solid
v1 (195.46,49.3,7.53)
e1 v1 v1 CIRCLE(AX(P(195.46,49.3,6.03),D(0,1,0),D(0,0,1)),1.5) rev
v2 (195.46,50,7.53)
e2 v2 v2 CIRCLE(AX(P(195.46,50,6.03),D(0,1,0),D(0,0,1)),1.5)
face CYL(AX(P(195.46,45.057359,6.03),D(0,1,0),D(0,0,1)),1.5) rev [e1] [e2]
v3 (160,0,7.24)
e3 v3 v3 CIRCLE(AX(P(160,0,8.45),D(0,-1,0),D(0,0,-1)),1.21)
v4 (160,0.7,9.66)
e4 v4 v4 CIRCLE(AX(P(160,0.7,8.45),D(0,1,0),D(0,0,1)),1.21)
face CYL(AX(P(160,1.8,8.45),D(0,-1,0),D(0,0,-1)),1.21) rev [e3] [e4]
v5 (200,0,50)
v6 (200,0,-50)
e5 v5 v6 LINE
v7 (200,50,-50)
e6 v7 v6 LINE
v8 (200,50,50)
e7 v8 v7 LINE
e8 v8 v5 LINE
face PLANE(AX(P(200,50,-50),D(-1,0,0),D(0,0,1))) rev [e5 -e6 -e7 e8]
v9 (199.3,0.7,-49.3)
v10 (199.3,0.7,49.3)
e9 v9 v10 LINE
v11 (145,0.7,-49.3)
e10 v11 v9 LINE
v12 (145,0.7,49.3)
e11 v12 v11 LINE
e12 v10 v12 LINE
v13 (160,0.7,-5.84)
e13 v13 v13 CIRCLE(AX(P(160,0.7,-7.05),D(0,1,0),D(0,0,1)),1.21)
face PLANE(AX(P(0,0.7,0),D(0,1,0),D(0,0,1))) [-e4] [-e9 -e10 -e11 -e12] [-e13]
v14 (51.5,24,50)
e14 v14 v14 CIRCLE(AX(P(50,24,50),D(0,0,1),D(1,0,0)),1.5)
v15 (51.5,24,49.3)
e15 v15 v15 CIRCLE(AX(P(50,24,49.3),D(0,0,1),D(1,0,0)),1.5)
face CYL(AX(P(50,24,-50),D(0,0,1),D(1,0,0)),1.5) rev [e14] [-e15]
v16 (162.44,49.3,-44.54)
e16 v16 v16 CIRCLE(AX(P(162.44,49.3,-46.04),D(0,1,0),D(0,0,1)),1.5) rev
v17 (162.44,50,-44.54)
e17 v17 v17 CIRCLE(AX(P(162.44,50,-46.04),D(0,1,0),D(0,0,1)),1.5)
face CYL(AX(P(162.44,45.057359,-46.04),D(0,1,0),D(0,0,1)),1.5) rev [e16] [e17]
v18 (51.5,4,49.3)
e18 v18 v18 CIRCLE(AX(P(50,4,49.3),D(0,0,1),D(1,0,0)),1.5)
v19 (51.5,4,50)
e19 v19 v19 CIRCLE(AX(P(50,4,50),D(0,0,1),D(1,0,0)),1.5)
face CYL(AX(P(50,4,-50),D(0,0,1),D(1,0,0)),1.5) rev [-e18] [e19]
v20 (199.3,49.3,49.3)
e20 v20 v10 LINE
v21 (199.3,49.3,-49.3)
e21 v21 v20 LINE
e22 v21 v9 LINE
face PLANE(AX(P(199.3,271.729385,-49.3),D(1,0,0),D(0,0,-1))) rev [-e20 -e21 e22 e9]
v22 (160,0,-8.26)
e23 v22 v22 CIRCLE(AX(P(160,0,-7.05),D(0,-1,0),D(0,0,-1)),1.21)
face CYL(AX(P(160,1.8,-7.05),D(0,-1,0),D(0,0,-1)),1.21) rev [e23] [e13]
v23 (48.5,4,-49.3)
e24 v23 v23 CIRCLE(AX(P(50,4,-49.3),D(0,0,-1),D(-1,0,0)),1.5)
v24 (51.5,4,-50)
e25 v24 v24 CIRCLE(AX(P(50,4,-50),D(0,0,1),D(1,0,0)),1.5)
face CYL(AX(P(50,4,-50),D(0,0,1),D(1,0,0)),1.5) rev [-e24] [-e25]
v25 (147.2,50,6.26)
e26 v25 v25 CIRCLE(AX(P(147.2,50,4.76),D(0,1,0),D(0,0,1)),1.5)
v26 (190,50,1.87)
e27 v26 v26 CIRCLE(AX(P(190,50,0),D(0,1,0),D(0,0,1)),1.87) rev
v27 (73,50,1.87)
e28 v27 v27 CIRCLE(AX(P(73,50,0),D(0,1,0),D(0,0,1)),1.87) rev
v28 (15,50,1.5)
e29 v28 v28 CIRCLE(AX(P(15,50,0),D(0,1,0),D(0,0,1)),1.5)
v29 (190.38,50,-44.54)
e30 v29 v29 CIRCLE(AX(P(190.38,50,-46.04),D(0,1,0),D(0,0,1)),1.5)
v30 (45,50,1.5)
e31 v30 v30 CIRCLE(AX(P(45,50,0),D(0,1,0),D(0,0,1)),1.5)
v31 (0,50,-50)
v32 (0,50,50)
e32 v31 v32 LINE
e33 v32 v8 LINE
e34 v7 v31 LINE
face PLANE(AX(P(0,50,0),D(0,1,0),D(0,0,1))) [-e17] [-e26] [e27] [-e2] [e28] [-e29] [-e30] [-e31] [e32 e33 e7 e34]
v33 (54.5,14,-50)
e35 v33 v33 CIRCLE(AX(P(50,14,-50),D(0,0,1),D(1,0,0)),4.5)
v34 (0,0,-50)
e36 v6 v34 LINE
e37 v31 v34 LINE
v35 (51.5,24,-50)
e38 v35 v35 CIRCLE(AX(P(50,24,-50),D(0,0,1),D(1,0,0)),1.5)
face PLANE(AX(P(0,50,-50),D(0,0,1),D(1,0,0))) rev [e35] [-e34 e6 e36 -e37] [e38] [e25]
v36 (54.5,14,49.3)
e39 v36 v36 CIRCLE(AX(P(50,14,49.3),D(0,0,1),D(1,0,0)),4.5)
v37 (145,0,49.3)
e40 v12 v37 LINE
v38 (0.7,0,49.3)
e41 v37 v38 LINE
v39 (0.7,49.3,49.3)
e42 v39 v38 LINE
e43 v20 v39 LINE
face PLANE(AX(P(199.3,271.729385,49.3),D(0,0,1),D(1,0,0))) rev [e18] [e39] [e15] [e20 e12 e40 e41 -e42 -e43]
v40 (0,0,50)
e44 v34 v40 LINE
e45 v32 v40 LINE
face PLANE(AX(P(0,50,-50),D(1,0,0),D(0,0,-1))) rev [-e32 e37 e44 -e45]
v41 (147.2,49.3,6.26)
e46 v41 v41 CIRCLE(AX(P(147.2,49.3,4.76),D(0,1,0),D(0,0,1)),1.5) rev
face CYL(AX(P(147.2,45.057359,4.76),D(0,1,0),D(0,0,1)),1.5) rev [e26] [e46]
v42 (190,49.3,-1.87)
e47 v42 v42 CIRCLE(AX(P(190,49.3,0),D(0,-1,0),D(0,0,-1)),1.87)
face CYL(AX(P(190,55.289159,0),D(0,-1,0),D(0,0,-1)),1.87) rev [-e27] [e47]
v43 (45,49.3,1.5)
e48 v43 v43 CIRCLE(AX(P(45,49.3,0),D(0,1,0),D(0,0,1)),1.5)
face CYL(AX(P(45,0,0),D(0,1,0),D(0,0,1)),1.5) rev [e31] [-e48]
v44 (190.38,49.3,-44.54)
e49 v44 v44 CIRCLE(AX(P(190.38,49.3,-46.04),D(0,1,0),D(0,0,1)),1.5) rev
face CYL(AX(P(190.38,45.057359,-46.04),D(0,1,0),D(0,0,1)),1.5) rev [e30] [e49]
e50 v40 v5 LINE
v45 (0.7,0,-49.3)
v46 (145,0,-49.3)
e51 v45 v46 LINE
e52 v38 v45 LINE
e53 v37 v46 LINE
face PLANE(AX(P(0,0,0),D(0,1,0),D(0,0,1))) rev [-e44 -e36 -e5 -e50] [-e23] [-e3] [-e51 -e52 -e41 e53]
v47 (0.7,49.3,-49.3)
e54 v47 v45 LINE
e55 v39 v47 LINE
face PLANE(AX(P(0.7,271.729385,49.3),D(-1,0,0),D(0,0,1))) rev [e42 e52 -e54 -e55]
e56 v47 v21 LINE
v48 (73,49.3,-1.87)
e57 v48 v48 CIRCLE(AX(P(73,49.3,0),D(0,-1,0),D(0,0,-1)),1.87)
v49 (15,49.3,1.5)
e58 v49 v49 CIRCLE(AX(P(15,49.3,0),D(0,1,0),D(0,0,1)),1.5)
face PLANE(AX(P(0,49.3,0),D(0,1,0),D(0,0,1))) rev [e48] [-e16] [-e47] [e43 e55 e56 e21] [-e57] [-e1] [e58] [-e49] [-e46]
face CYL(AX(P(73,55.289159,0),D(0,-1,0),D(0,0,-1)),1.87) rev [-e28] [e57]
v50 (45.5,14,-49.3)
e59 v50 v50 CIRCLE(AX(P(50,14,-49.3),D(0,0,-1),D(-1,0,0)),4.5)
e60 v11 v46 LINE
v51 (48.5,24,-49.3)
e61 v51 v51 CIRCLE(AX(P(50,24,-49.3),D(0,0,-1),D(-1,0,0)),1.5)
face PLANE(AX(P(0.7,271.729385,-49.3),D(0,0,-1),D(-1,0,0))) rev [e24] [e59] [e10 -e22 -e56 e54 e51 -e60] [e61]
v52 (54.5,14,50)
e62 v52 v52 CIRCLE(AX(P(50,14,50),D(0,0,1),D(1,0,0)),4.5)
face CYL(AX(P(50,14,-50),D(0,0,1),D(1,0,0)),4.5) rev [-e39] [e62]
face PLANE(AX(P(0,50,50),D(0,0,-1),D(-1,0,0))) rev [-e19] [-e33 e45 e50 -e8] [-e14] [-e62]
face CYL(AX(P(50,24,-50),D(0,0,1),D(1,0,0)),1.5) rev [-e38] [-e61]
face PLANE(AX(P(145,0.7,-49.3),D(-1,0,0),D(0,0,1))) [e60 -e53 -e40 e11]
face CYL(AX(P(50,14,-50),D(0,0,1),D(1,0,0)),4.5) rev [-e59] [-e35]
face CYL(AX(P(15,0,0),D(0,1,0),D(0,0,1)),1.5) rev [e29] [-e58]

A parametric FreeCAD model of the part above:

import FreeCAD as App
import Part
import Sketcher
from FreeCAD import Vector


def add_polygon(sketch, points):
    """Adds a closed chain of lines whose ends are joined by coincident constraints."""
    first, n = sketch.GeometryCount, len(points)
    for a, b in zip(points, points[1:] + points[:1]):
        sketch.addGeometry(Part.LineSegment(App.Vector(*a, 0), App.Vector(*b, 0)), False)
    for i in range(n):
        sketch.addConstraint(Sketcher.Constraint("Coincident", first + i, 2, first + (i + 1) % n, 1))

doc = App.newDocument("Part")
params = doc.addObject("Spreadsheet::Sheet", "Params")
for row, (alias, value) in enumerate([
    ("sketch1_width", "200 mm"),
    ("sketch1_height", "100 mm"),
    ("pad1_length", "50 mm"),
    ("sketch2_width", "198.6 mm"),
    ("sketch2_height", "98.6 mm"),
    ("pocket1_length", "49.3 mm"),
    ("sketch3_width", "54.3 mm"),
    ("sketch3_height", "98.6 mm"),
    ("pad2_length", "0.7 mm"),
    ("sketch4_diameter", "9 mm"),
    ("sketch4_diameter2", "3 mm"),
    ("sketch5_diameter", "2.42 mm"),
    ("pocket3_length", "1.8 mm"),
    ("sketch6_diameter", "3.74 mm"),
    ("pocket4_length", "0.7 mm"),
    ("sketch7_diameter", "3 mm"),
    ("sketch8_diameter", "3 mm"),
    ("pocket6_length", "0.7 mm"),
], start=1):
    params.set(f"A{row}", alias)
    params.set(f"B{row}", "=" + value)
    params.setAlias(f"B{row}", alias)

body = doc.addObject("PartDesign::Body", "Body")

# Sketch on XZ plane
sketch1 = doc.addObject("Sketcher::SketchObject", "Sketch")
body.addObject(sketch1)
sketch1.AttachmentSupport = (doc.XZ_Plane, [""])
sketch1.MapMode = "FlatFace"
add_polygon(sketch1, [(0, -50), (0, 50), (200, 50), (200, -50)])  # lines 0-3
sketch1.addConstraint([
    Sketcher.Constraint("Vertical", 0),
    Sketcher.Constraint("Horizontal", 1),
    Sketcher.Constraint("Vertical", 2),
    Sketcher.Constraint("Horizontal", 3),
    Sketcher.Constraint("Symmetric", 0, 2, 3, 2, -1, 1),
    Sketcher.Constraint("DistanceX", 1, 1, 1, 2, 200.0),
    Sketcher.Constraint("DistanceY", 0, 1, 0, 2, 100.0),
])
sketch1.setExpression("Constraints[9]", "Params.sketch1_width")
sketch1.setExpression("Constraints[10]", "Params.sketch1_height")
pad1 = doc.addObject("PartDesign::Pad", "Pad")
body.addObject(pad1)
pad1.Profile = sketch1
pad1.setExpression("Length", "Params.pad1_length")
pad1.Reversed = True

# Sketch on XZ plane
sketch2 = doc.addObject("Sketcher::SketchObject", "Sketch001")
body.addObject(sketch2)
sketch2.AttachmentSupport = (doc.XZ_Plane, [""])
sketch2.MapMode = "FlatFace"
add_polygon(sketch2, [(1, 49), (1, -49), (199, -49), (199, 49)])  # lines 0-3
sketch2.addConstraint([
    Sketcher.Constraint("Vertical", 0),
    Sketcher.Constraint("Horizontal", 1),
    Sketcher.Constraint("Vertical", 2),
    Sketcher.Constraint("Horizontal", 3),
    Sketcher.Constraint("DistanceX", 1, 1, 1, 2, 198.6),
    Sketcher.Constraint("DistanceY", 0, 2, 0, 1, 98.6),
    Sketcher.Constraint("DistanceX", -1, 1, 0, 2, 0.7),
    Sketcher.Constraint("DistanceY", 0, 2, -1, 1, 49.3),
])
sketch2.setExpression("Constraints[8]", "Params.sketch2_width")
sketch2.setExpression("Constraints[9]", "Params.sketch2_height")
pocket1 = doc.addObject("PartDesign::Pocket", "Pocket")
body.addObject(pocket1)
pocket1.Profile = sketch2
pocket1.setExpression("Length", "Params.pocket1_length")

# Sketch on XZ plane
sketch3 = doc.addObject("Sketcher::SketchObject", "Sketch002")
body.addObject(sketch3)
sketch3.AttachmentSupport = (doc.XZ_Plane, [""])
sketch3.MapMode = "FlatFace"
add_polygon(sketch3, [(145, 49), (145, -49), (199, -49), (199, 49)])  # lines 0-3
sketch3.addConstraint([
    Sketcher.Constraint("Vertical", 0),
    Sketcher.Constraint("Horizontal", 1),
    Sketcher.Constraint("Vertical", 2),
    Sketcher.Constraint("Horizontal", 3),
    Sketcher.Constraint("DistanceX", 1, 1, 1, 2, 54.3),
    Sketcher.Constraint("DistanceY", 0, 2, 0, 1, 98.6),
    Sketcher.Constraint("DistanceX", -1, 1, 0, 2, 145.0),
    Sketcher.Constraint("DistanceY", 0, 2, -1, 1, 49.3),
])
sketch3.setExpression("Constraints[8]", "Params.sketch3_width")
sketch3.setExpression("Constraints[9]", "Params.sketch3_height")
pad2 = doc.addObject("PartDesign::Pad", "Pad001")
body.addObject(pad2)
pad2.Profile = sketch3
pad2.setExpression("Length", "Params.pad2_length")
pad2.Reversed = True

# Sketch on XY plane
sketch4 = doc.addObject("Sketcher::SketchObject", "Sketch003")
body.addObject(sketch4)
sketch4.AttachmentSupport = (doc.XY_Plane, [""])
sketch4.MapMode = "FlatFace"
sketch4.AttachmentOffset = App.Placement(Vector(0, 0, 50), App.Rotation())
sketch4.addGeometry([
    Part.Circle(Vector(50, 14, 0), Vector(0, 0, 1), 4.5),
    Part.Circle(Vector(50, 4, 0), Vector(0, 0, 1), 1.5),
    Part.Circle(Vector(50, 24, 0), Vector(0, 0, 1), 1.5),
], False)
sketch4.addConstraint([
    Sketcher.Constraint("Equal", 1, 2),
    Sketcher.Constraint("Vertical", 0, 3, 1, 3),
    Sketcher.Constraint("Vertical", 1, 3, 2, 3),
    Sketcher.Constraint("Diameter", 0, 9.0),
    Sketcher.Constraint("Diameter", 1, 3.0),
    Sketcher.Constraint("DistanceX", -1, 1, 0, 3, 50.0),
    Sketcher.Constraint("DistanceY", -1, 1, 0, 3, 14.0),
    Sketcher.Constraint("DistanceY", -1, 1, 1, 3, 4.0),
    Sketcher.Constraint("DistanceY", -1, 1, 2, 3, 24.0),
])
sketch4.setExpression("Constraints[3]", "Params.sketch4_diameter")
sketch4.setExpression("Constraints[4]", "Params.sketch4_diameter2")
pocket2 = doc.addObject("PartDesign::Pocket", "Pocket001")
body.addObject(pocket2)
pocket2.Profile = sketch4
pocket2.Type = "ThroughAll"

# Sketch on XZ plane
sketch5 = doc.addObject("Sketcher::SketchObject", "Sketch004")
body.addObject(sketch5)
sketch5.AttachmentSupport = (doc.XZ_Plane, [""])
sketch5.MapMode = "FlatFace"
sketch5.addGeometry([
    Part.Circle(Vector(160, 8.4, 0), Vector(0, 0, 1), 1.2),
    Part.Circle(Vector(160, -7, 0), Vector(0, 0, 1), 1.2),
], False)
sketch5.addConstraint([
    Sketcher.Constraint("Equal", 0, 1),
    Sketcher.Constraint("Vertical", 0, 3, 1, 3),
    Sketcher.Constraint("Diameter", 0, 2.42),
    Sketcher.Constraint("DistanceX", -1, 1, 0, 3, 160.0),
    Sketcher.Constraint("DistanceY", 1, 3, 0, 3, 15.5),
    Sketcher.Constraint("DistanceY", -1, 1, 0, 3, 8.45),
])
sketch5.setExpression("Constraints[2]", "Params.sketch5_diameter")
pocket3 = doc.addObject("PartDesign::Pocket", "Pocket002")
body.addObject(pocket3)
pocket3.Profile = sketch5
pocket3.setExpression("Length", "Params.pocket3_length")

# Sketch on XZ plane
sketch6 = doc.addObject("Sketcher::SketchObject", "Sketch005")
body.addObject(sketch6)
sketch6.AttachmentSupport = (doc.XZ_Plane, [""])
sketch6.MapMode = "FlatFace"
sketch6.AttachmentOffset = App.Placement(Vector(0, 0, -49.3), App.Rotation())
sketch6.addGeometry([
    Part.Circle(Vector(190, 0, 0), Vector(0, 0, 1), 1.9),
    Part.Circle(Vector(73, 0, 0), Vector(0, 0, 1), 1.9),
], False)
sketch6.addConstraint([
    Sketcher.Constraint("Equal", 0, 1),
    Sketcher.Constraint("PointOnObject", 0, 3, -1),
    Sketcher.Constraint("PointOnObject", 1, 3, -1),
    Sketcher.Constraint("Diameter", 0, 3.74),
    Sketcher.Constraint("DistanceX", -1, 1, 0, 3, 190.0),
    Sketcher.Constraint("DistanceX", -1, 1, 1, 3, 73.0),
])
sketch6.setExpression("Constraints[3]", "Params.sketch6_diameter")
pocket4 = doc.addObject("PartDesign::Pocket", "Pocket003")
body.addObject(pocket4)
pocket4.Profile = sketch6
pocket4.setExpression("Length", "Params.pocket4_length")

# Sketch on XZ plane
sketch7 = doc.addObject("Sketcher::SketchObject", "Sketch006")
body.addObject(sketch7)
sketch7.AttachmentSupport = (doc.XZ_Plane, [""])
sketch7.MapMode = "FlatFace"
sketch7.AttachmentOffset = App.Placement(Vector(0, 0, -50), App.Rotation())
sketch7.addGeometry([
    Part.Circle(Vector(15, 0, 0), Vector(0, 0, 1), 1.5),
    Part.Circle(Vector(45, 0, 0), Vector(0, 0, 1), 1.5),
], False)
sketch7.addConstraint([
    Sketcher.Constraint("Equal", 0, 1),
    Sketcher.Constraint("PointOnObject", 0, 3, -1),
    Sketcher.Constraint("PointOnObject", 1, 3, -1),
    Sketcher.Constraint("Diameter", 0, 3.0),
    Sketcher.Constraint("DistanceX", -1, 1, 0, 3, 15.0),
    Sketcher.Constraint("DistanceX", -1, 1, 1, 3, 45.0),
])
sketch7.setExpression("Constraints[3]", "Params.sketch7_diameter")
pocket5 = doc.addObject("PartDesign::Pocket", "Pocket004")
body.addObject(pocket5)
pocket5.Profile = sketch7
pocket5.Type = "ThroughAll"
pocket5.Reversed = True

# Sketch on XZ plane
sketch8 = doc.addObject("Sketcher::SketchObject", "Sketch007")
body.addObject(sketch8)
sketch8.AttachmentSupport = (doc.XZ_Plane, [""])
sketch8.MapMode = "FlatFace"
sketch8.AttachmentOffset = App.Placement(Vector(0, 0, -50), App.Rotation())
sketch8.addGeometry([
    Part.Circle(Vector(190.4, -46, 0), Vector(0, 0, 1), 1.5),
    Part.Circle(Vector(195.5, 6, 0), Vector(0, 0, 1), 1.5),
    Part.Circle(Vector(147.2, 4.8, 0), Vector(0, 0, 1), 1.5),
    Part.Circle(Vector(162.4, -46, 0), Vector(0, 0, 1), 1.5),
], False)
sketch8.addConstraint([
    Sketcher.Constraint("Equal", 0, 1),
    Sketcher.Constraint("Equal", 1, 2),
    Sketcher.Constraint("Equal", 2, 3),
    Sketcher.Constraint("Horizontal", 0, 3, 3, 3),
    Sketcher.Constraint("Diameter", 0, 3.0),
    Sketcher.Constraint("DistanceX", -1, 1, 2, 3, 147.2),
    Sketcher.Constraint("DistanceY", 0, 3, 2, 3, 50.8),
    Sketcher.Constraint("DistanceX", -1, 1, 0, 3, 190.38),
    Sketcher.Constraint("DistanceY", 0, 3, -1, 1, 46.04),
    Sketcher.Constraint("DistanceX", -1, 1, 1, 3, 195.46),
    Sketcher.Constraint("DistanceY", -1, 1, 1, 3, 6.03),
    Sketcher.Constraint("DistanceX", -1, 1, 3, 3, 162.44),
])
sketch8.setExpression("Constraints[4]", "Params.sketch8_diameter")
pocket6 = doc.addObject("PartDesign::Pocket", "Pocket005")
body.addObject(pocket6)
pocket6.Profile = sketch8
pocket6.setExpression("Length", "Params.pocket6_length")
pocket6.Reversed = True

doc.recompute()
